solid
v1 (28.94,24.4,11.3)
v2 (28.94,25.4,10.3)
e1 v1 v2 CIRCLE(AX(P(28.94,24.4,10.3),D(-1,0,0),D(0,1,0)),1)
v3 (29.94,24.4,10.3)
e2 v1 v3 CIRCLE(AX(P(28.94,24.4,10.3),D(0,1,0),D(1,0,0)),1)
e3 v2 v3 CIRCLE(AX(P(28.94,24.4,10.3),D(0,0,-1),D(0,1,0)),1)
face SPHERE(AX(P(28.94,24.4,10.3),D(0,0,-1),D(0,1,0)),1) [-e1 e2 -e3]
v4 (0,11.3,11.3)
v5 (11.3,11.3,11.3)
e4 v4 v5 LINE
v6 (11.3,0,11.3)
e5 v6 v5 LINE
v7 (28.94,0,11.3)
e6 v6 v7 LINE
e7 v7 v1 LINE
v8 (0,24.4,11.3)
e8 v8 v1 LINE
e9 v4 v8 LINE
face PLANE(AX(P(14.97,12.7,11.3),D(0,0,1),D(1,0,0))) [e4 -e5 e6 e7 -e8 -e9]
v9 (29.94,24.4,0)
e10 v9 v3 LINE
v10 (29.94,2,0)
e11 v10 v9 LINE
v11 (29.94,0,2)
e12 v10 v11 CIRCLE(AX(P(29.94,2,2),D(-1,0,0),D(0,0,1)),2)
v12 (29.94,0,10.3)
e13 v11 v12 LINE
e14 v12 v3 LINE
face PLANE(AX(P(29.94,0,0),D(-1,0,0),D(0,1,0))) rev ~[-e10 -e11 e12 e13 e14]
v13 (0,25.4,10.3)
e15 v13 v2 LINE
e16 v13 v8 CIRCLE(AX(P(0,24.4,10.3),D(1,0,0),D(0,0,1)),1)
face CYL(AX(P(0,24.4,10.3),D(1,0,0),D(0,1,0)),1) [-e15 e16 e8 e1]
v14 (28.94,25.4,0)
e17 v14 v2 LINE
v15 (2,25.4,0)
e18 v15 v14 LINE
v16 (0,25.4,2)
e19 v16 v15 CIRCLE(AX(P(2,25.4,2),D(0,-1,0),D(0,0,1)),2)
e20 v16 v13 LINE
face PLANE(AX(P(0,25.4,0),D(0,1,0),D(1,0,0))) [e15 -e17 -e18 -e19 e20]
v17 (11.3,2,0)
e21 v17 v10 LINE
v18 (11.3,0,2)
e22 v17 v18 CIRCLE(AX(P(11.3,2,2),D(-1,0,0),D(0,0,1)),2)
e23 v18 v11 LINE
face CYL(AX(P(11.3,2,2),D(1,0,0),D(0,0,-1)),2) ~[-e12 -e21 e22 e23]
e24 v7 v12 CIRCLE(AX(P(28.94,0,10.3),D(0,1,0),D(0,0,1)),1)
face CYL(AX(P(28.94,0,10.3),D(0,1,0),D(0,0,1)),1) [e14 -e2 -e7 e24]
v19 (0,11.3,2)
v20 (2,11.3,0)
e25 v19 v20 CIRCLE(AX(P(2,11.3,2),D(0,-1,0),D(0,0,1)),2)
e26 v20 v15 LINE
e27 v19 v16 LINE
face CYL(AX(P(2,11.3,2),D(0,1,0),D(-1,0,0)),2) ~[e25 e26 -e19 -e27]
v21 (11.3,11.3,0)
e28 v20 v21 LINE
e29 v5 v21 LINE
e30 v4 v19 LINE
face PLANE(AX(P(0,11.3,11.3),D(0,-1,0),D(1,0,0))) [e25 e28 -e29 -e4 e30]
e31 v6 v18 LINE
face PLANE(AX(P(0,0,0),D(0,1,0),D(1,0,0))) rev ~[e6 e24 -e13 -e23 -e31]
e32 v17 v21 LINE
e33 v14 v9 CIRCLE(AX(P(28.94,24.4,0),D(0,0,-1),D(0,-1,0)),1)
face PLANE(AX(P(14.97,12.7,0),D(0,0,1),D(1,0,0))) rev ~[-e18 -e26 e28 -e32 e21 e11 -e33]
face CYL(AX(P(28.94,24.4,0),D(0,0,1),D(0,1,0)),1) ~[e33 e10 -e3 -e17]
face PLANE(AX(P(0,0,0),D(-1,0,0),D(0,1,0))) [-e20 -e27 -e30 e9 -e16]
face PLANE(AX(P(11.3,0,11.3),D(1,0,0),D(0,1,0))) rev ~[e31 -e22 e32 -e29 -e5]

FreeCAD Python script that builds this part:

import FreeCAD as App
import Part
import Sketcher


def edges_at(feature, points):
    """Names of the edges that pass closest to the given points."""
    edges = feature.Shape.Edges
    near = lambda p: min(range(len(edges)), key=lambda i: edges[i].distToShape(Part.Vertex(*p))[0])
    return sorted({f"Edge{near(p) + 1}" for p in points})

doc = App.newDocument("Part")
body = doc.addObject("PartDesign::Body", "Body")

sketch1 = body.newObject("Sketcher::SketchObject", "Sketch")
sketch1.AttachmentSupport = (doc.getObject("XY_Plane"), [""])
sketch1.MapMode = "FlatFace"
sketch1.addGeometry(Part.LineSegment(App.Vector(0, 25, 0), App.Vector(0, 0, 0)), False)
sketch1.addGeometry(Part.LineSegment(App.Vector(0, 0, 0), App.Vector(30, 0, 0)), False)
sketch1.addGeometry(Part.LineSegment(App.Vector(30, 0, 0), App.Vector(30, 25, 0)), False)
sketch1.addGeometry(Part.LineSegment(App.Vector(30, 25, 0), App.Vector(0, 25, 0)), False)
sketch1.addConstraint(Sketcher.Constraint("Coincident", 0, 2, 1, 1))
sketch1.addConstraint(Sketcher.Constraint("Coincident", 1, 2, 2, 1))
sketch1.addConstraint(Sketcher.Constraint("Coincident", 2, 2, 3, 1))
sketch1.addConstraint(Sketcher.Constraint("Coincident", 3, 2, 0, 1))
sketch1.addConstraint(Sketcher.Constraint("Vertical", 0))
sketch1.addConstraint(Sketcher.Constraint("Horizontal", 1))
sketch1.addConstraint(Sketcher.Constraint("Vertical", 2))
sketch1.addConstraint(Sketcher.Constraint("Horizontal", 3))
sketch1.addConstraint(Sketcher.Constraint("Coincident", 0, 2, -1, 1))
sketch1.addConstraint(Sketcher.Constraint("DistanceY", 0, 2, 0, 1, 25.4))
sketch1.addConstraint(Sketcher.Constraint("DistanceX", 1, 1, 1, 2, 29.94))
pad1 = body.newObject("PartDesign::Pad", "Pad")
pad1.Profile = sketch1
pad1.Length = 11.3

sketch2 = body.newObject("Sketcher::SketchObject", "Sketch001")
sketch2.AttachmentSupport = (doc.getObject("XY_Plane"), [""])
sketch2.MapMode = "FlatFace"
sketch2.AttachmentOffset = App.Placement(App.Vector(0, 0, 11.3), App.Rotation())
sketch2.addGeometry(Part.LineSegment(App.Vector(0, 11, 0), App.Vector(0, 0, 0)), False)
sketch2.addGeometry(Part.LineSegment(App.Vector(0, 0, 0), App.Vector(11, 0, 0)), False)
sketch2.addGeometry(Part.LineSegment(App.Vector(11, 0, 0), App.Vector(11, 11, 0)), False)
sketch2.addGeometry(Part.LineSegment(App.Vector(11, 11, 0), App.Vector(0, 11, 0)), False)
sketch2.addConstraint(Sketcher.Constraint("Coincident", 0, 2, 1, 1))
sketch2.addConstraint(Sketcher.Constraint("Coincident", 1, 2, 2, 1))
sketch2.addConstraint(Sketcher.Constraint("Coincident", 2, 2, 3, 1))
sketch2.addConstraint(Sketcher.Constraint("Coincident", 3, 2, 0, 1))
sketch2.addConstraint(Sketcher.Constraint("Vertical", 0))
sketch2.addConstraint(Sketcher.Constraint("Horizontal", 1))
sketch2.addConstraint(Sketcher.Constraint("Vertical", 2))
sketch2.addConstraint(Sketcher.Constraint("Horizontal", 3))
sketch2.addConstraint(Sketcher.Constraint("Coincident", 0, 2, -1, 1))
sketch2.addConstraint(Sketcher.Constraint("Equal", 3, 0))
sketch2.addConstraint(Sketcher.Constraint("DistanceX", 1, 1, 1, 2, 11.3))
pocket1 = body.newObject("PartDesign::Pocket", "Pocket")
pocket1.Profile = sketch2
pocket1.Length = 25
doc.recompute()

fillet = body.newObject("PartDesign::Fillet", "Fillet")
fillet.Base = (pocket1, edges_at(pocket1, [(20.62, 0, 0), (0, 18.35, 0)]))
fillet.Radius = 2
doc.recompute()

fillet2 = body.newObject("PartDesign::Fillet", "Fillet001")
fillet2.Base = (fillet, edges_at(fillet, [(29.94, 25.4, 5.65), (14.97, 25.4, 11.3), (29.94, 12.7, 11.3)]))
fillet2.Radius = 1

doc.recompute()
